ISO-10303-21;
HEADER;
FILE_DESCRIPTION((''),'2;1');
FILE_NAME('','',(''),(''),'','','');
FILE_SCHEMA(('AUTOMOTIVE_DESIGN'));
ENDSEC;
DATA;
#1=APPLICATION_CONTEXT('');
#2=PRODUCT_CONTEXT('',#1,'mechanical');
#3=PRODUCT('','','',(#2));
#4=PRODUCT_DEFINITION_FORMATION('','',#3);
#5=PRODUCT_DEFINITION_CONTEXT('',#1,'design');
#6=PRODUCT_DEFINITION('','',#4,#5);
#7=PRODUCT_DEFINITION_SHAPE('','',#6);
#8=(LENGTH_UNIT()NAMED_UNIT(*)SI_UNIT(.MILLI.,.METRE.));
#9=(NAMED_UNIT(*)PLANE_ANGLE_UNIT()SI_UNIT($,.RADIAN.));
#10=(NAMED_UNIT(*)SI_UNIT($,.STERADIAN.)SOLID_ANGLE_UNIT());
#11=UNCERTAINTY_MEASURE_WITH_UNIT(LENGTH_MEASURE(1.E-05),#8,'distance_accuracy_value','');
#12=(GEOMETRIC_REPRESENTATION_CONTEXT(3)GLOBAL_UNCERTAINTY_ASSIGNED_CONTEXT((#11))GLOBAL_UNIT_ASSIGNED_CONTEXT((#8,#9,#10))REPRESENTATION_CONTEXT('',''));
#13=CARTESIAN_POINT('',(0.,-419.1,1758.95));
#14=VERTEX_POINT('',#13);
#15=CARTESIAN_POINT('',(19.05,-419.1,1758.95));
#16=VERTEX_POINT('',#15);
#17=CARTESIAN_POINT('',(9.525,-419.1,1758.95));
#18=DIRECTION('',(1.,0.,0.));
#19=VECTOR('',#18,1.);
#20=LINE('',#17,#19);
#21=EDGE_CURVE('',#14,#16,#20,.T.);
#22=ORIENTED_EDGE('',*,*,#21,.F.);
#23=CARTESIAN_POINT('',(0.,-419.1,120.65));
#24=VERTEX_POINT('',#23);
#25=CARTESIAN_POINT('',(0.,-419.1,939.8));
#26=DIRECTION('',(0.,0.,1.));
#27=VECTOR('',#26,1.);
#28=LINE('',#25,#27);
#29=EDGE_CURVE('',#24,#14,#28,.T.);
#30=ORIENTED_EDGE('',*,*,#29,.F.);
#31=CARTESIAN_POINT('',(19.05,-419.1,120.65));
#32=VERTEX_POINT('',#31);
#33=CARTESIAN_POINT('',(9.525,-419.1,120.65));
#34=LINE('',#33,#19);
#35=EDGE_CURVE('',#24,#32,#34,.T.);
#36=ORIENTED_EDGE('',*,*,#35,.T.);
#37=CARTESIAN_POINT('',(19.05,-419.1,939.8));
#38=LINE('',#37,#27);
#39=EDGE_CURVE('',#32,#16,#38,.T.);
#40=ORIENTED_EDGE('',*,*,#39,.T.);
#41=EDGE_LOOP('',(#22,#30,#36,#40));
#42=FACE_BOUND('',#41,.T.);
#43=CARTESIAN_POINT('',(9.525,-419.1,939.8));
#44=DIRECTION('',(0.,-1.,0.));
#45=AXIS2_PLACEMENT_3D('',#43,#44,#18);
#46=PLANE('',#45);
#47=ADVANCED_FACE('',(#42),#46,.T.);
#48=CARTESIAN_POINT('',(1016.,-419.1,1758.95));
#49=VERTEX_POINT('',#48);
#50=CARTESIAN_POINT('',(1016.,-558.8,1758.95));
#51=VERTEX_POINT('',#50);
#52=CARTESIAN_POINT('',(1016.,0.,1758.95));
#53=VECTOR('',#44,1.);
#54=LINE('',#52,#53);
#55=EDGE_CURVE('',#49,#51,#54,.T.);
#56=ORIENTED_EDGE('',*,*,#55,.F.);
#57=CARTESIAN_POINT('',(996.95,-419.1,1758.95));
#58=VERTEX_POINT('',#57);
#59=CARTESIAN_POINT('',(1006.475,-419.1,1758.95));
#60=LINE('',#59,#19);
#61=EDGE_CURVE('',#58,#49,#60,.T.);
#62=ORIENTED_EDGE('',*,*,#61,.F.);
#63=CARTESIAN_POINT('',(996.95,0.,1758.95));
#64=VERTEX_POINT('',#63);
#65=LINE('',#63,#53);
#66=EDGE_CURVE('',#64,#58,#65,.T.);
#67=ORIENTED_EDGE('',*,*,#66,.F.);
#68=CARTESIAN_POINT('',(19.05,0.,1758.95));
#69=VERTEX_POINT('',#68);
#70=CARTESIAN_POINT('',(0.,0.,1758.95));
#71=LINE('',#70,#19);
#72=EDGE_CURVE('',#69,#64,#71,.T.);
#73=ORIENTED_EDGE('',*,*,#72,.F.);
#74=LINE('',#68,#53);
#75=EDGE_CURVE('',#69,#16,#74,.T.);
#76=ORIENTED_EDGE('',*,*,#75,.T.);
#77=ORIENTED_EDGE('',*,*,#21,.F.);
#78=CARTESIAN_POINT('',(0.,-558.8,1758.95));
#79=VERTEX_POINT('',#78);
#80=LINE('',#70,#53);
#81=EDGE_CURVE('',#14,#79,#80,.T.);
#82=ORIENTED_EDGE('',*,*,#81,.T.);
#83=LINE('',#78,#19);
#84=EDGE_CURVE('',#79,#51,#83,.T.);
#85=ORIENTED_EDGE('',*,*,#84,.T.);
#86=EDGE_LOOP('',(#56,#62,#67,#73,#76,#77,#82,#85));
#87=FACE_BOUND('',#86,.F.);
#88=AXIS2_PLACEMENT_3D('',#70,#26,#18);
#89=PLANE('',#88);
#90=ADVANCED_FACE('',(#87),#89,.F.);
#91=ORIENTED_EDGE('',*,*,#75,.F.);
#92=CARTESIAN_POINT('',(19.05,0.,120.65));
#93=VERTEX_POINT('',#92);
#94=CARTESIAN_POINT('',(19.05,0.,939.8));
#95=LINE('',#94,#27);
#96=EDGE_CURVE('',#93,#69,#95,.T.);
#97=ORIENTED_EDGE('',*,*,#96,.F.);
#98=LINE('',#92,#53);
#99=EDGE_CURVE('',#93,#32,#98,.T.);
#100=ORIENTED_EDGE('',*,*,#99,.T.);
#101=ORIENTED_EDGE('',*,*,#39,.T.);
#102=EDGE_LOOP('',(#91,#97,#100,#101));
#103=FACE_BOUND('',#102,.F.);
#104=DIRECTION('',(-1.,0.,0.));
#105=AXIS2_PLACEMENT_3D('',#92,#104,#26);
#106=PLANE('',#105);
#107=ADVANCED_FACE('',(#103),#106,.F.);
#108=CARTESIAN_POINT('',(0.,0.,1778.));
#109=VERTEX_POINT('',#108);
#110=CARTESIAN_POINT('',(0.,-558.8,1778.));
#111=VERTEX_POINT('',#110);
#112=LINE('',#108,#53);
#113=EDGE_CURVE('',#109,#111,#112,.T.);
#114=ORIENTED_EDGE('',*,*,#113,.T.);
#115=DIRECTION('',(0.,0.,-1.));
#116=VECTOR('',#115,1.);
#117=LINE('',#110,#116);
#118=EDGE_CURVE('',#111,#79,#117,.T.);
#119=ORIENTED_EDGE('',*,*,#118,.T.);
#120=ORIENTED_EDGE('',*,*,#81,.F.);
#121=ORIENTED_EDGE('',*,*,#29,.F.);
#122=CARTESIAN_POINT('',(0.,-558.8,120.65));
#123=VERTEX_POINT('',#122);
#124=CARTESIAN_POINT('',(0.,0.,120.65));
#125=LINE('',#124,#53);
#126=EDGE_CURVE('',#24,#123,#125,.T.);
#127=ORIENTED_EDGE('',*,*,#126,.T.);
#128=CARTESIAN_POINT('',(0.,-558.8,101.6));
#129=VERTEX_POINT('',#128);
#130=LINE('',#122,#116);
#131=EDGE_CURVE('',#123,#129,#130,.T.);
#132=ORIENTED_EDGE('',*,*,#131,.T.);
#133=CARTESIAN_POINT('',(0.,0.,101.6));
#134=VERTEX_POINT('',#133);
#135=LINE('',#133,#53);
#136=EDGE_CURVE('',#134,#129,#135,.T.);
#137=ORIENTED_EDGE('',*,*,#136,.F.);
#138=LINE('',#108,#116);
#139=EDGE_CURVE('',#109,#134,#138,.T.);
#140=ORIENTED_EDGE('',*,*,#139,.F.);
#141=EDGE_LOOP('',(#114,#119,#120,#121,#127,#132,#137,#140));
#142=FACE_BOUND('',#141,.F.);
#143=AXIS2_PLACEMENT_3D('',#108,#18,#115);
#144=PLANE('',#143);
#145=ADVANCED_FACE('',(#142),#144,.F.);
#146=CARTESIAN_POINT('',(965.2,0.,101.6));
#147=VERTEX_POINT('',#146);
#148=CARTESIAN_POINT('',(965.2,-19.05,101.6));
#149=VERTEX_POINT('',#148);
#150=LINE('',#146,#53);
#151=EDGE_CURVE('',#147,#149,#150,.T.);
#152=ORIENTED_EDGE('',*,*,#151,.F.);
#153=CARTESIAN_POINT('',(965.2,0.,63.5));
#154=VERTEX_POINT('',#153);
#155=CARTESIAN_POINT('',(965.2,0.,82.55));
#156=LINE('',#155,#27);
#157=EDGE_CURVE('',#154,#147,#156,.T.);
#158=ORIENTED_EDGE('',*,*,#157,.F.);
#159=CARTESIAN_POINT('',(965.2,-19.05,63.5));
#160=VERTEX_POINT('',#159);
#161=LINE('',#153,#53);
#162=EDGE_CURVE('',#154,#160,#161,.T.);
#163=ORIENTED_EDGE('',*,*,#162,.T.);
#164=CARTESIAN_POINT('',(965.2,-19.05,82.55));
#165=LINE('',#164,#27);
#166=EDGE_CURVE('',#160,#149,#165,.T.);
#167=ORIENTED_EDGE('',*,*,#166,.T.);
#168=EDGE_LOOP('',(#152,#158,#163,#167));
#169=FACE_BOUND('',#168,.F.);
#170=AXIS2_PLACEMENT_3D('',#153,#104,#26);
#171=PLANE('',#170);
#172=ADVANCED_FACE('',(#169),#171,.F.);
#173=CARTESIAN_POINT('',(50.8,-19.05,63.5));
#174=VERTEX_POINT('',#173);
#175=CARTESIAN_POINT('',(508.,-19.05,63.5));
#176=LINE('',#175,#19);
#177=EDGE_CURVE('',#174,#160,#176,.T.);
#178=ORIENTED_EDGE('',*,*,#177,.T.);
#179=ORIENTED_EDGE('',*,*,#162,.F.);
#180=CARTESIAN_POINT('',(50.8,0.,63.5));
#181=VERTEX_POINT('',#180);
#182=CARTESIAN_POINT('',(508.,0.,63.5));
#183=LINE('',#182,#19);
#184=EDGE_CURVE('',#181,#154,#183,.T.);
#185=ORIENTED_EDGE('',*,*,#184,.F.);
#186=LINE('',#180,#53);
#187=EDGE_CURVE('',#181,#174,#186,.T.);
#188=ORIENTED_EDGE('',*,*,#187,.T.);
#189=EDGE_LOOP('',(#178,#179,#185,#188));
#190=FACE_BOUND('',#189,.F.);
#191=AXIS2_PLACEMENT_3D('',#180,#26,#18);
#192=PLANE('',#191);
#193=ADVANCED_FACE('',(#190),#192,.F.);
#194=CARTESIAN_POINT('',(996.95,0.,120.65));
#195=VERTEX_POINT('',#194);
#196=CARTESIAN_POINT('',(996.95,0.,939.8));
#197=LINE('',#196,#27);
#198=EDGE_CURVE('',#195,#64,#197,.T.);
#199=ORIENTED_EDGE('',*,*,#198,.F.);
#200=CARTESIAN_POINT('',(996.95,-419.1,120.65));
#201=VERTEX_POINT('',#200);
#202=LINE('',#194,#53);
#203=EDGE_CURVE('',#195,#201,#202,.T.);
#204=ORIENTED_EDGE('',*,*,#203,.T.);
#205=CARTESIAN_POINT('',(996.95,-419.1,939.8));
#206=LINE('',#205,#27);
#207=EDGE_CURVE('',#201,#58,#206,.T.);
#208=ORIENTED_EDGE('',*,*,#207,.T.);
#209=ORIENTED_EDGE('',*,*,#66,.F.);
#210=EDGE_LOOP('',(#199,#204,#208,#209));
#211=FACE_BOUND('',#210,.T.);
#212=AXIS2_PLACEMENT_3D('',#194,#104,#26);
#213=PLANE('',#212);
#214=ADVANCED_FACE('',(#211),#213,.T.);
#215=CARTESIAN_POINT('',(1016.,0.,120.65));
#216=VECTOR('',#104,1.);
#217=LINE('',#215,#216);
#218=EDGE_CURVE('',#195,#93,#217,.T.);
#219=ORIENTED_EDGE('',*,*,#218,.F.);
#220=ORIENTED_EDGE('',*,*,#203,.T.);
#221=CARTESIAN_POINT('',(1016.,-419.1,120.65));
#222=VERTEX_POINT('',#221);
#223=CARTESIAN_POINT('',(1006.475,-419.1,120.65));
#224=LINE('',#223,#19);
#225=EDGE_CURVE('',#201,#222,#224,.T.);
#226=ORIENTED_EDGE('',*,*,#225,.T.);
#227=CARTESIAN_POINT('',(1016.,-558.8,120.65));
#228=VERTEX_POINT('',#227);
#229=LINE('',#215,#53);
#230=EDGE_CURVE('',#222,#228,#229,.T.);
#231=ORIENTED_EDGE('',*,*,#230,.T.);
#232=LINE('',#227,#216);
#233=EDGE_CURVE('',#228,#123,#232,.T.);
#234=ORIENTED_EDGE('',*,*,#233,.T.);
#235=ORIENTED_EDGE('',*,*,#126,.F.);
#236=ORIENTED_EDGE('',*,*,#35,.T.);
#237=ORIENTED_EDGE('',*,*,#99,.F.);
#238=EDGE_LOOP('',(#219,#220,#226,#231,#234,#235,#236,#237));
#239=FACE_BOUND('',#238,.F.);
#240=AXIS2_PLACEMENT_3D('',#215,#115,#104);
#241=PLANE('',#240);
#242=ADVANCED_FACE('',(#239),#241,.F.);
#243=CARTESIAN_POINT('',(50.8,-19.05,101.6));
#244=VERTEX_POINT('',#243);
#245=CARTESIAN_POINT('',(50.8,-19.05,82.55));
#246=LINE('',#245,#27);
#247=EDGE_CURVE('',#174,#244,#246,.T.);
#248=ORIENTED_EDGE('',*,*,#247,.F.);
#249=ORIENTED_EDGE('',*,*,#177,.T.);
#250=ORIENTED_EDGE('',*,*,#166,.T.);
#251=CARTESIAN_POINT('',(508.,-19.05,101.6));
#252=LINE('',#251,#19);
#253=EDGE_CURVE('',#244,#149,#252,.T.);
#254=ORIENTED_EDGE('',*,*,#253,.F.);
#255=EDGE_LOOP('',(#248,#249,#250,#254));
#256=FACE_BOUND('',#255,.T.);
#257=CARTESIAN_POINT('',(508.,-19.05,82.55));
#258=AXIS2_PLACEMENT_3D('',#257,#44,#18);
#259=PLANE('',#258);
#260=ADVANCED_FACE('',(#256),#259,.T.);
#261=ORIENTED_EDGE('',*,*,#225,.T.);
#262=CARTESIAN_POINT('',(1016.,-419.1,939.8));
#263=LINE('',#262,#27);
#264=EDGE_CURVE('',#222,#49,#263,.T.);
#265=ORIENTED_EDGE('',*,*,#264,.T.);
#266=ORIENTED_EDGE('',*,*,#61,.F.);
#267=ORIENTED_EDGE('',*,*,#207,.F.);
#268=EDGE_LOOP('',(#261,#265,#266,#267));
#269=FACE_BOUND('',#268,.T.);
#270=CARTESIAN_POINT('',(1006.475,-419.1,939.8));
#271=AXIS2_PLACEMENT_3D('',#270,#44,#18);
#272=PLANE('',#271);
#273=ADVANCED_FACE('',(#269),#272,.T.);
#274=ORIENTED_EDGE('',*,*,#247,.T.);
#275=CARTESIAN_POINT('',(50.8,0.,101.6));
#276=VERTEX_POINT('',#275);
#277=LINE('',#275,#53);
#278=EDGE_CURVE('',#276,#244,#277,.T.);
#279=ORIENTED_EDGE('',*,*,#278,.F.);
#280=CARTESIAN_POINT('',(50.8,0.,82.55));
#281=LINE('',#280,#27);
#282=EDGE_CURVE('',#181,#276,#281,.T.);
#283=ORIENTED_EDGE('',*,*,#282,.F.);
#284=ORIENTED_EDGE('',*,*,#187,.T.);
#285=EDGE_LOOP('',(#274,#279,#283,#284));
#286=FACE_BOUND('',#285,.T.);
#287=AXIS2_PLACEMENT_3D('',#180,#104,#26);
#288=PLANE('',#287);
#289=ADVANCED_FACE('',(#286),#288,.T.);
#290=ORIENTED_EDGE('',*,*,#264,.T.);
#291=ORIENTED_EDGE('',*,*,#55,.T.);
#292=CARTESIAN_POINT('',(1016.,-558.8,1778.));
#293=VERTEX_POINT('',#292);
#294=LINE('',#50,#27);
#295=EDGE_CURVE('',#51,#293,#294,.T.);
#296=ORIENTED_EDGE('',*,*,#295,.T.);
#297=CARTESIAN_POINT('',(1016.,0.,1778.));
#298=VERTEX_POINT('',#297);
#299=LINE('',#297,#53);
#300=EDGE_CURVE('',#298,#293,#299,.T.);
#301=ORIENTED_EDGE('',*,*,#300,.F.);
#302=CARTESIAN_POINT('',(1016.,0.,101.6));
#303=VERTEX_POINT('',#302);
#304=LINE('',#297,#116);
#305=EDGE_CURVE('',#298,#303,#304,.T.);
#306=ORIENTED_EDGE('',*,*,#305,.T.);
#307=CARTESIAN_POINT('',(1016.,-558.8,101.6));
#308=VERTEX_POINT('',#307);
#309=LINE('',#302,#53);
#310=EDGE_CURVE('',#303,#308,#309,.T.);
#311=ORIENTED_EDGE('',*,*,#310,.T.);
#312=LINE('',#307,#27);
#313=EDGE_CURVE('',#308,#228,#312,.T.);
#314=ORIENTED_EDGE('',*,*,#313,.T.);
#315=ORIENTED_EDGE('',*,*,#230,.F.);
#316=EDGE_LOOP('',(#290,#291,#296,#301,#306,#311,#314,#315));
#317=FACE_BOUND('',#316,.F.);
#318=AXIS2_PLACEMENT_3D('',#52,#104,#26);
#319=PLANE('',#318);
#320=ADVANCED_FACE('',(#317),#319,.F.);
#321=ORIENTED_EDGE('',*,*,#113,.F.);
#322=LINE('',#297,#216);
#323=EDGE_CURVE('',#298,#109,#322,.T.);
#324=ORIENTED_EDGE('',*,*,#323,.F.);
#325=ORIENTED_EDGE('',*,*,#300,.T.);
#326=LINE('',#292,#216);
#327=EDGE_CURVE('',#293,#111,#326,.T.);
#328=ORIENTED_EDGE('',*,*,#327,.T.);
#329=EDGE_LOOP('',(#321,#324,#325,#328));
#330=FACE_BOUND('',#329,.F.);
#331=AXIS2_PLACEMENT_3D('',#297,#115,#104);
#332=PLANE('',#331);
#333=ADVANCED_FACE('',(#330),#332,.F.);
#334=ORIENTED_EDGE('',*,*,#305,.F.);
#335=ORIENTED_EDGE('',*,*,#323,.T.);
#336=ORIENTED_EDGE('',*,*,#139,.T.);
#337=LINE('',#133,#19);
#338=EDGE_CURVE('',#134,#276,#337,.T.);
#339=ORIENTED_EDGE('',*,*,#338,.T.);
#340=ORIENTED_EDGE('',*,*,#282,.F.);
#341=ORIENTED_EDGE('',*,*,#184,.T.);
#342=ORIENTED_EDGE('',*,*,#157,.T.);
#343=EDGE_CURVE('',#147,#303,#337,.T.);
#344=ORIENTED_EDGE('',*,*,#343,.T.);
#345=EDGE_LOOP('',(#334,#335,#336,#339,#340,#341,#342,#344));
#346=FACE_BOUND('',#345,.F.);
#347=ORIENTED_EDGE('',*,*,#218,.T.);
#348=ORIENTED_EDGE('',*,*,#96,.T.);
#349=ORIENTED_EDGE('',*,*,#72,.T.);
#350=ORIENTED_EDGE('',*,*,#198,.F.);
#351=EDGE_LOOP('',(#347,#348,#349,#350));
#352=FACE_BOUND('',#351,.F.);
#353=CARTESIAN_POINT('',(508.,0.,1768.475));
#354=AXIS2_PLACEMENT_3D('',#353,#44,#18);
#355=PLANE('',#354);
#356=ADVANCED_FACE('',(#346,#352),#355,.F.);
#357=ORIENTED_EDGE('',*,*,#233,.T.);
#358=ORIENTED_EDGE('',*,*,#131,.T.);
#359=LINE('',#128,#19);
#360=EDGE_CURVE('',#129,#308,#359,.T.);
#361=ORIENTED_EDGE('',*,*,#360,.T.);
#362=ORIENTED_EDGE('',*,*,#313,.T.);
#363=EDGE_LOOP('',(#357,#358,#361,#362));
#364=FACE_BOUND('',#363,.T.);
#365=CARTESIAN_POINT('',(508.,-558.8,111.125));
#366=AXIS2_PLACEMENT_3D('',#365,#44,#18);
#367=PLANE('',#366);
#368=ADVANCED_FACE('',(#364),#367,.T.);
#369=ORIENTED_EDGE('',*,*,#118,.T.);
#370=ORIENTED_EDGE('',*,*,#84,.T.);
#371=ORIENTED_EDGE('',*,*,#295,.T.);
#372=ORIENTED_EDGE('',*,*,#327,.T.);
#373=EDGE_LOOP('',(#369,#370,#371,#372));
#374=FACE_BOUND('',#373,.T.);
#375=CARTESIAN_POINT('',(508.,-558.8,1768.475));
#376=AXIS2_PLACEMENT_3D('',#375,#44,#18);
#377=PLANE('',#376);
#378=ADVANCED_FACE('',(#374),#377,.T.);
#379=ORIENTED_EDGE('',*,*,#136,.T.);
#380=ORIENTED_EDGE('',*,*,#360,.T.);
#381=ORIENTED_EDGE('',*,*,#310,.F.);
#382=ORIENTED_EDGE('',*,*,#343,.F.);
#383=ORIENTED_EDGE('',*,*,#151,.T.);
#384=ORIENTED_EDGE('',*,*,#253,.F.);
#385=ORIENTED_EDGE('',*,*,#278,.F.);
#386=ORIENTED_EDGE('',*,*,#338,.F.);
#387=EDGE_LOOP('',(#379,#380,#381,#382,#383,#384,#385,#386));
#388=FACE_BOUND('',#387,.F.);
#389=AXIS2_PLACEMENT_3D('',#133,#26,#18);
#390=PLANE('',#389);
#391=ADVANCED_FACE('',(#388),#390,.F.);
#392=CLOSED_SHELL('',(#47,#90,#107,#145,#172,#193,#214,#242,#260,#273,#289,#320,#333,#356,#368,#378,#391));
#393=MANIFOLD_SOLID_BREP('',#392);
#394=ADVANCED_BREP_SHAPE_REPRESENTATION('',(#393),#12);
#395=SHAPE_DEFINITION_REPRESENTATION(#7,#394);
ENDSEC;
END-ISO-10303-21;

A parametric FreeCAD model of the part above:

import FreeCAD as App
import Part
import Sketcher

V = App.Vector
Q = App.Units.Quantity

doc = App.newDocument("Part")
body = doc.addObject("PartDesign::Body", "Body")

# Sketch on XZ plane
sketch1 = body.newObject("Sketcher::SketchObject", "Sketch")
sketch1.AttachmentSupport = (doc.getObject("XZ_Plane"), [""])
sketch1.MapMode = "FlatFace"
sketch1.addGeometry(Part.LineSegment(V(0, 120.65, 0), V(0, 101.6, 0)), False)
sketch1.addGeometry(Part.LineSegment(V(0, 101.6, 0), V(1016, 101.6, 0)), False)
sketch1.addGeometry(Part.LineSegment(V(1016, 101.6, 0), V(1016, 120.65, 0)), False)
sketch1.addGeometry(Part.LineSegment(V(1016, 120.65, 0), V(0, 120.65, 0)), False)
sketch1.addConstraint(Sketcher.Constraint("Coincident", 0, 2, 1, 1))
sketch1.addConstraint(Sketcher.Constraint("Coincident", 1, 2, 2, 1))
sketch1.addConstraint(Sketcher.Constraint("Coincident", 2, 2, 3, 1))
sketch1.addConstraint(Sketcher.Constraint("Coincident", 3, 2, 0, 1))
sketch1.addConstraint(Sketcher.Constraint("Vertical", 0))
sketch1.addConstraint(Sketcher.Constraint("Horizontal", 1))
sketch1.addConstraint(Sketcher.Constraint("Vertical", 2))
sketch1.addConstraint(Sketcher.Constraint("Horizontal", 3))
sketch1.addConstraint(Sketcher.Constraint("PointOnObject", 0, 2, -2))
sketch1.addConstraint(Sketcher.Constraint("DistanceX", 1, 1, 1, 2, Q("40 in")))
sketch1.addConstraint(Sketcher.Constraint("DistanceY", -1, 1, 0, 2, Q("4 in")))
sketch1.addConstraint(Sketcher.Constraint("DistanceY", 0, 2, 0, 1, Q("0.75 in")))
pad1 = body.newObject("PartDesign::Pad", "Pad")
pad1.Profile = sketch1
pad1.Length = Q("22 in")

# Sketch on XZ plane
sketch2 = body.newObject("Sketcher::SketchObject", "Sketch001")
sketch2.AttachmentSupport = (doc.getObject("XZ_Plane"), [""])
sketch2.MapMode = "FlatFace"
sketch2.addGeometry(Part.LineSegment(V(996.95, 1758.95, 0), V(996.95, 120.65, 0)), False)
sketch2.addGeometry(Part.LineSegment(V(996.95, 120.65, 0), V(1016, 120.65, 0)), False)
sketch2.addGeometry(Part.LineSegment(V(1016, 120.65, 0), V(1016, 1758.95, 0)), False)
sketch2.addGeometry(Part.LineSegment(V(1016, 1758.95, 0), V(996.95, 1758.95, 0)), False)
sketch2.addGeometry(Part.LineSegment(V(0, 1758.95, 0), V(0, 120.65, 0)), False)
sketch2.addGeometry(Part.LineSegment(V(0, 120.65, 0), V(19.05, 120.65, 0)), False)
sketch2.addGeometry(Part.LineSegment(V(19.05, 120.65, 0), V(19.05, 1758.95, 0)), False)
sketch2.addGeometry(Part.LineSegment(V(19.05, 1758.95, 0), V(0, 1758.95, 0)), False)
sketch2.addConstraint(Sketcher.Constraint("Coincident", 0, 2, 1, 1))
sketch2.addConstraint(Sketcher.Constraint("Coincident", 1, 2, 2, 1))
sketch2.addConstraint(Sketcher.Constraint("Coincident", 2, 2, 3, 1))
sketch2.addConstraint(Sketcher.Constraint("Coincident", 3, 2, 0, 1))
sketch2.addConstraint(Sketcher.Constraint("Coincident", 4, 2, 5, 1))
sketch2.addConstraint(Sketcher.Constraint("Coincident", 5, 2, 6, 1))
sketch2.addConstraint(Sketcher.Constraint("Coincident", 6, 2, 7, 1))
sketch2.addConstraint(Sketcher.Constraint("Coincident", 7, 2, 4, 1))
sketch2.addConstraint(Sketcher.Constraint("Vertical", 0))
sketch2.addConstraint(Sketcher.Constraint("Horizontal", 1))
sketch2.addConstraint(Sketcher.Constraint("Vertical", 2))
sketch2.addConstraint(Sketcher.Constraint("Horizontal", 3))
sketch2.addConstraint(Sketcher.Constraint("Vertical", 4))
sketch2.addConstraint(Sketcher.Constraint("Horizontal", 5))
sketch2.addConstraint(Sketcher.Constraint("Vertical", 6))
sketch2.addConstraint(Sketcher.Constraint("Horizontal", 7))
sketch2.addConstraint(Sketcher.Constraint("PointOnObject", 4, 2, -2))
sketch2.addConstraint(Sketcher.Constraint("Horizontal", 1, 2, 4, 2))
sketch2.addConstraint(Sketcher.Constraint("Horizontal", 3, 2, 6, 2))
sketch2.addConstraint(Sketcher.Constraint("Equal", 3, 5))
sketch2.addConstraint(Sketcher.Constraint("DistanceY", 0, 2, 0, 1, Q("64.5 in")))
sketch2.addConstraint(Sketcher.Constraint("DistanceX", -1, 1, 1, 2, Q("40 in")))
sketch2.addConstraint(Sketcher.Constraint("DistanceX", 1, 1, 1, 2, Q("0.75 in")))
sketch2.addConstraint(Sketcher.Constraint("DistanceY", -1, 1, 0, 2, Q("4.75 in")))
pad2 = body.newObject("PartDesign::Pad", "Pad001")
pad2.Profile = sketch2
pad2.Length = Q("16.5 in")

# Sketch on XZ plane
sketch3 = body.newObject("Sketcher::SketchObject", "Sketch002")
sketch3.AttachmentSupport = (doc.getObject("XZ_Plane"), [""])
sketch3.MapMode = "FlatFace"
sketch3.addGeometry(Part.LineSegment(V(0, 1778, 0), V(0, 1758.95, 0)), False)
sketch3.addGeometry(Part.LineSegment(V(0, 1758.95, 0), V(1016, 1758.95, 0)), False)
sketch3.addGeometry(Part.LineSegment(V(1016, 1758.95, 0), V(1016, 1778, 0)), False)
sketch3.addGeometry(Part.LineSegment(V(1016, 1778, 0), V(0, 1778, 0)), False)
sketch3.addConstraint(Sketcher.Constraint("Coincident", 0, 2, 1, 1))
sketch3.addConstraint(Sketcher.Constraint("Coincident", 1, 2, 2, 1))
sketch3.addConstraint(Sketcher.Constraint("Coincident", 2, 2, 3, 1))
sketch3.addConstraint(Sketcher.Constraint("Coincident", 3, 2, 0, 1))
sketch3.addConstraint(Sketcher.Constraint("Vertical", 0))
sketch3.addConstraint(Sketcher.Constraint("Horizontal", 1))
sketch3.addConstraint(Sketcher.Constraint("Vertical", 2))
sketch3.addConstraint(Sketcher.Constraint("Horizontal", 3))
sketch3.addConstraint(Sketcher.Constraint("PointOnObject", 0, 2, -2))
sketch3.addConstraint(Sketcher.Constraint("DistanceX", 1, 1, 1, 2, Q("40 in")))
sketch3.addConstraint(Sketcher.Constraint("DistanceY", -1, 1, 2, 2, Q("70 in")))
sketch3.addConstraint(Sketcher.Constraint("DistanceY", 0, 2, 0, 1, Q("0.75 in")))
pad3 = body.newObject("PartDesign::Pad", "Pad002")
pad3.Profile = sketch3
pad3.Length = Q("22 in")

# Sketch on XZ plane
sketch4 = body.newObject("Sketcher::SketchObject", "Sketch003")
sketch4.AttachmentSupport = (doc.getObject("XZ_Plane"), [""])
sketch4.MapMode = "FlatFace"
sketch4.addGeometry(Part.LineSegment(V(50.8, 101.6, 0), V(50.8, 63.5, 0)), False)
sketch4.addGeometry(Part.LineSegment(V(50.8, 63.5, 0), V(965.2, 63.5, 0)), False)
sketch4.addGeometry(Part.LineSegment(V(965.2, 63.5, 0), V(965.2, 101.6, 0)), False)
sketch4.addGeometry(Part.LineSegment(V(965.2, 101.6, 0), V(50.8, 101.6, 0)), False)
sketch4.addConstraint(Sketcher.Constraint("Coincident", 0, 2, 1, 1))
sketch4.addConstraint(Sketcher.Constraint("Coincident", 1, 2, 2, 1))
sketch4.addConstraint(Sketcher.Constraint("Coincident", 2, 2, 3, 1))
sketch4.addConstraint(Sketcher.Constraint("Coincident", 3, 2, 0, 1))
sketch4.addConstraint(Sketcher.Constraint("Vertical", 0))
sketch4.addConstraint(Sketcher.Constraint("Horizontal", 1))
sketch4.addConstraint(Sketcher.Constraint("Vertical", 2))
sketch4.addConstraint(Sketcher.Constraint("Horizontal", 3))
sketch4.addConstraint(Sketcher.Constraint("DistanceX", 1, 1, 1, 2, Q("36 in")))
sketch4.addConstraint(Sketcher.Constraint("DistanceY", 0, 2, 0, 1, Q("1.5 in")))
sketch4.addConstraint(Sketcher.Constraint("DistanceX", -1, 1, 0, 2, Q("2 in")))
sketch4.addConstraint(Sketcher.Constraint("DistanceY", -1, 1, 2, 2, Q("4 in")))
pad4 = body.newObject("PartDesign::Pad", "Pad003")
pad4.Profile = sketch4
pad4.Length = Q("0.75 in")

doc.recompute()
